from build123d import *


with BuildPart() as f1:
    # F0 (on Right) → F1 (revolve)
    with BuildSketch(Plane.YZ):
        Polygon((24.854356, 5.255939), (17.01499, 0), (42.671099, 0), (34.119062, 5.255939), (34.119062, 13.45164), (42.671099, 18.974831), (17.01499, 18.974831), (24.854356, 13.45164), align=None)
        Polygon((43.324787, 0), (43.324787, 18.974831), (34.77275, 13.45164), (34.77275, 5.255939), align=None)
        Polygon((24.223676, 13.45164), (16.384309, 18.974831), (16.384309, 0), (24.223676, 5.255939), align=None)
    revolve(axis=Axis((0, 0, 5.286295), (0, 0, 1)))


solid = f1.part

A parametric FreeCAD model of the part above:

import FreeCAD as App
import Part
import Sketcher
from FreeCAD import Vector
Q = App.Units.Quantity

doc = App.newDocument("Part")
body = doc.addObject("PartDesign::Body", "Body")
body.AllowCompound = True

# Sketch on YZ plane
sketch1 = body.newObject("Sketcher::SketchObject", "Sketch")
sketch1.AttachmentSupport = (doc.getObject("YZ_Plane"), [""])
sketch1.MapMode = "FlatFace"
sketch1.addGeometry([
    Part.LineSegment(Vector(25, 5, 0), Vector(17, 0, 0)),  # 0
    Part.LineSegment(Vector(17, 0, 0), Vector(43, 0, 0)),  # 1
    Part.LineSegment(Vector(43, 0, 0), Vector(34, 5, 0)),  # 2
    Part.LineSegment(Vector(34, 5, 0), Vector(34, 13, 0)),  # 3
    Part.LineSegment(Vector(34, 13, 0), Vector(43, 19, 0)),  # 4
    Part.LineSegment(Vector(43, 19, 0), Vector(17, 19, 0)),  # 5
    Part.LineSegment(Vector(17, 19, 0), Vector(25, 13, 0)),  # 6
    Part.LineSegment(Vector(25, 13, 0), Vector(25, 5, 0)),  # 7
    Part.LineSegment(Vector(43, 0, 0), Vector(43, 19, 0)),  # 8
    Part.LineSegment(Vector(43, 19, 0), Vector(35, 13, 0)),  # 9
    Part.LineSegment(Vector(35, 13, 0), Vector(35, 5, 0)),  # 10
    Part.LineSegment(Vector(35, 5, 0), Vector(43, 0, 0)),  # 11
    Part.LineSegment(Vector(24, 13, 0), Vector(16, 19, 0)),  # 12
    Part.LineSegment(Vector(16, 19, 0), Vector(16, 0, 0)),  # 13
    Part.LineSegment(Vector(16, 0, 0), Vector(24, 5, 0)),  # 14
    Part.LineSegment(Vector(24, 5, 0), Vector(24, 13, 0)),  # 15
], False)
sketch1.addConstraint([
    Sketcher.Constraint("Coincident", 0, 2, 1, 1),
    Sketcher.Constraint("Coincident", 1, 2, 2, 1),
    Sketcher.Constraint("Coincident", 2, 2, 3, 1),
    Sketcher.Constraint("Coincident", 3, 2, 4, 1),
    Sketcher.Constraint("Coincident", 4, 2, 5, 1),
    Sketcher.Constraint("Coincident", 5, 2, 6, 1),
    Sketcher.Constraint("Coincident", 6, 2, 7, 1),
    Sketcher.Constraint("Coincident", 7, 2, 0, 1),
    Sketcher.Constraint("Coincident", 8, 2, 9, 1),
    Sketcher.Constraint("Coincident", 9, 2, 10, 1),
    Sketcher.Constraint("Coincident", 10, 2, 11, 1),
    Sketcher.Constraint("Coincident", 11, 2, 8, 1),
    Sketcher.Constraint("Coincident", 12, 2, 13, 1),
    Sketcher.Constraint("Coincident", 13, 2, 14, 1),
    Sketcher.Constraint("Coincident", 14, 2, 15, 1),
    Sketcher.Constraint("Coincident", 15, 2, 12, 1),
    Sketcher.Constraint("Horizontal", 1),
    Sketcher.Constraint("Vertical", 3),
    Sketcher.Constraint("Horizontal", 5),
    Sketcher.Constraint("Vertical", 7),
    Sketcher.Constraint("Vertical", 8),
    Sketcher.Constraint("Vertical", 10),
    Sketcher.Constraint("Vertical", 13),
    Sketcher.Constraint("Vertical", 15),
    Sketcher.Constraint("PointOnObject", 0, 2, -1),
    Sketcher.Constraint("PointOnObject", 11, 2, -1),
    Sketcher.Constraint("PointOnObject", 13, 2, -1),
    Sketcher.Constraint("Parallel", 4, 9),
    Sketcher.Constraint("Parallel", 2, 11),
    Sketcher.Constraint("Parallel", 6, 12),
    Sketcher.Constraint("Parallel", 0, 14),
    Sketcher.Constraint("Horizontal", 3, 2, 6, 2),
    Sketcher.Constraint("Horizontal", 2, 2, 7, 2),
    Sketcher.Constraint("Horizontal", 5, 2, 8, 2),
    Sketcher.Constraint("Horizontal", 6, 2, 9, 2),
    Sketcher.Constraint("Horizontal", 7, 2, 10, 2),
    Sketcher.Constraint("Horizontal", 8, 2, 12, 2),
    Sketcher.Constraint("Horizontal", 10, 2, 14, 2),
    Sketcher.Constraint("Horizontal", 9, 2, 15, 2),
    Sketcher.Constraint("DistanceY", 3, 1, 3, 2, Q("8.195701 mm")),
    Sketcher.Constraint("DistanceX", 1, 1, 1, 2, Q("25.656109 mm")),
    Sketcher.Constraint("DistanceY", 8, 1, 8, 2, Q("18.974831 mm")),
    Sketcher.Constraint("DistanceX", -1, 1, 1, 2, Q("42.671099 mm")),
    Sketcher.Constraint("Distance", 0, Q("9.43825 mm")),
    Sketcher.Constraint("Distance", 2, Q("10.038039 mm")),
    Sketcher.Constraint("Distance", 4, Q("10.180519 mm")),
    Sketcher.Constraint("DistanceX", -1, 1, 9, 2, Q("34.77275 mm")),
    Sketcher.Constraint("DistanceX", -1, 1, 12, 2, Q("16.384309 mm")),
])
revolution = body.newObject("PartDesign::Revolution", "Revolution")
revolution.Profile = sketch1
revolution.ReferenceAxis = (sketch1, ["V_Axis"])
revolution.Angle = 360

doc.recompute()
